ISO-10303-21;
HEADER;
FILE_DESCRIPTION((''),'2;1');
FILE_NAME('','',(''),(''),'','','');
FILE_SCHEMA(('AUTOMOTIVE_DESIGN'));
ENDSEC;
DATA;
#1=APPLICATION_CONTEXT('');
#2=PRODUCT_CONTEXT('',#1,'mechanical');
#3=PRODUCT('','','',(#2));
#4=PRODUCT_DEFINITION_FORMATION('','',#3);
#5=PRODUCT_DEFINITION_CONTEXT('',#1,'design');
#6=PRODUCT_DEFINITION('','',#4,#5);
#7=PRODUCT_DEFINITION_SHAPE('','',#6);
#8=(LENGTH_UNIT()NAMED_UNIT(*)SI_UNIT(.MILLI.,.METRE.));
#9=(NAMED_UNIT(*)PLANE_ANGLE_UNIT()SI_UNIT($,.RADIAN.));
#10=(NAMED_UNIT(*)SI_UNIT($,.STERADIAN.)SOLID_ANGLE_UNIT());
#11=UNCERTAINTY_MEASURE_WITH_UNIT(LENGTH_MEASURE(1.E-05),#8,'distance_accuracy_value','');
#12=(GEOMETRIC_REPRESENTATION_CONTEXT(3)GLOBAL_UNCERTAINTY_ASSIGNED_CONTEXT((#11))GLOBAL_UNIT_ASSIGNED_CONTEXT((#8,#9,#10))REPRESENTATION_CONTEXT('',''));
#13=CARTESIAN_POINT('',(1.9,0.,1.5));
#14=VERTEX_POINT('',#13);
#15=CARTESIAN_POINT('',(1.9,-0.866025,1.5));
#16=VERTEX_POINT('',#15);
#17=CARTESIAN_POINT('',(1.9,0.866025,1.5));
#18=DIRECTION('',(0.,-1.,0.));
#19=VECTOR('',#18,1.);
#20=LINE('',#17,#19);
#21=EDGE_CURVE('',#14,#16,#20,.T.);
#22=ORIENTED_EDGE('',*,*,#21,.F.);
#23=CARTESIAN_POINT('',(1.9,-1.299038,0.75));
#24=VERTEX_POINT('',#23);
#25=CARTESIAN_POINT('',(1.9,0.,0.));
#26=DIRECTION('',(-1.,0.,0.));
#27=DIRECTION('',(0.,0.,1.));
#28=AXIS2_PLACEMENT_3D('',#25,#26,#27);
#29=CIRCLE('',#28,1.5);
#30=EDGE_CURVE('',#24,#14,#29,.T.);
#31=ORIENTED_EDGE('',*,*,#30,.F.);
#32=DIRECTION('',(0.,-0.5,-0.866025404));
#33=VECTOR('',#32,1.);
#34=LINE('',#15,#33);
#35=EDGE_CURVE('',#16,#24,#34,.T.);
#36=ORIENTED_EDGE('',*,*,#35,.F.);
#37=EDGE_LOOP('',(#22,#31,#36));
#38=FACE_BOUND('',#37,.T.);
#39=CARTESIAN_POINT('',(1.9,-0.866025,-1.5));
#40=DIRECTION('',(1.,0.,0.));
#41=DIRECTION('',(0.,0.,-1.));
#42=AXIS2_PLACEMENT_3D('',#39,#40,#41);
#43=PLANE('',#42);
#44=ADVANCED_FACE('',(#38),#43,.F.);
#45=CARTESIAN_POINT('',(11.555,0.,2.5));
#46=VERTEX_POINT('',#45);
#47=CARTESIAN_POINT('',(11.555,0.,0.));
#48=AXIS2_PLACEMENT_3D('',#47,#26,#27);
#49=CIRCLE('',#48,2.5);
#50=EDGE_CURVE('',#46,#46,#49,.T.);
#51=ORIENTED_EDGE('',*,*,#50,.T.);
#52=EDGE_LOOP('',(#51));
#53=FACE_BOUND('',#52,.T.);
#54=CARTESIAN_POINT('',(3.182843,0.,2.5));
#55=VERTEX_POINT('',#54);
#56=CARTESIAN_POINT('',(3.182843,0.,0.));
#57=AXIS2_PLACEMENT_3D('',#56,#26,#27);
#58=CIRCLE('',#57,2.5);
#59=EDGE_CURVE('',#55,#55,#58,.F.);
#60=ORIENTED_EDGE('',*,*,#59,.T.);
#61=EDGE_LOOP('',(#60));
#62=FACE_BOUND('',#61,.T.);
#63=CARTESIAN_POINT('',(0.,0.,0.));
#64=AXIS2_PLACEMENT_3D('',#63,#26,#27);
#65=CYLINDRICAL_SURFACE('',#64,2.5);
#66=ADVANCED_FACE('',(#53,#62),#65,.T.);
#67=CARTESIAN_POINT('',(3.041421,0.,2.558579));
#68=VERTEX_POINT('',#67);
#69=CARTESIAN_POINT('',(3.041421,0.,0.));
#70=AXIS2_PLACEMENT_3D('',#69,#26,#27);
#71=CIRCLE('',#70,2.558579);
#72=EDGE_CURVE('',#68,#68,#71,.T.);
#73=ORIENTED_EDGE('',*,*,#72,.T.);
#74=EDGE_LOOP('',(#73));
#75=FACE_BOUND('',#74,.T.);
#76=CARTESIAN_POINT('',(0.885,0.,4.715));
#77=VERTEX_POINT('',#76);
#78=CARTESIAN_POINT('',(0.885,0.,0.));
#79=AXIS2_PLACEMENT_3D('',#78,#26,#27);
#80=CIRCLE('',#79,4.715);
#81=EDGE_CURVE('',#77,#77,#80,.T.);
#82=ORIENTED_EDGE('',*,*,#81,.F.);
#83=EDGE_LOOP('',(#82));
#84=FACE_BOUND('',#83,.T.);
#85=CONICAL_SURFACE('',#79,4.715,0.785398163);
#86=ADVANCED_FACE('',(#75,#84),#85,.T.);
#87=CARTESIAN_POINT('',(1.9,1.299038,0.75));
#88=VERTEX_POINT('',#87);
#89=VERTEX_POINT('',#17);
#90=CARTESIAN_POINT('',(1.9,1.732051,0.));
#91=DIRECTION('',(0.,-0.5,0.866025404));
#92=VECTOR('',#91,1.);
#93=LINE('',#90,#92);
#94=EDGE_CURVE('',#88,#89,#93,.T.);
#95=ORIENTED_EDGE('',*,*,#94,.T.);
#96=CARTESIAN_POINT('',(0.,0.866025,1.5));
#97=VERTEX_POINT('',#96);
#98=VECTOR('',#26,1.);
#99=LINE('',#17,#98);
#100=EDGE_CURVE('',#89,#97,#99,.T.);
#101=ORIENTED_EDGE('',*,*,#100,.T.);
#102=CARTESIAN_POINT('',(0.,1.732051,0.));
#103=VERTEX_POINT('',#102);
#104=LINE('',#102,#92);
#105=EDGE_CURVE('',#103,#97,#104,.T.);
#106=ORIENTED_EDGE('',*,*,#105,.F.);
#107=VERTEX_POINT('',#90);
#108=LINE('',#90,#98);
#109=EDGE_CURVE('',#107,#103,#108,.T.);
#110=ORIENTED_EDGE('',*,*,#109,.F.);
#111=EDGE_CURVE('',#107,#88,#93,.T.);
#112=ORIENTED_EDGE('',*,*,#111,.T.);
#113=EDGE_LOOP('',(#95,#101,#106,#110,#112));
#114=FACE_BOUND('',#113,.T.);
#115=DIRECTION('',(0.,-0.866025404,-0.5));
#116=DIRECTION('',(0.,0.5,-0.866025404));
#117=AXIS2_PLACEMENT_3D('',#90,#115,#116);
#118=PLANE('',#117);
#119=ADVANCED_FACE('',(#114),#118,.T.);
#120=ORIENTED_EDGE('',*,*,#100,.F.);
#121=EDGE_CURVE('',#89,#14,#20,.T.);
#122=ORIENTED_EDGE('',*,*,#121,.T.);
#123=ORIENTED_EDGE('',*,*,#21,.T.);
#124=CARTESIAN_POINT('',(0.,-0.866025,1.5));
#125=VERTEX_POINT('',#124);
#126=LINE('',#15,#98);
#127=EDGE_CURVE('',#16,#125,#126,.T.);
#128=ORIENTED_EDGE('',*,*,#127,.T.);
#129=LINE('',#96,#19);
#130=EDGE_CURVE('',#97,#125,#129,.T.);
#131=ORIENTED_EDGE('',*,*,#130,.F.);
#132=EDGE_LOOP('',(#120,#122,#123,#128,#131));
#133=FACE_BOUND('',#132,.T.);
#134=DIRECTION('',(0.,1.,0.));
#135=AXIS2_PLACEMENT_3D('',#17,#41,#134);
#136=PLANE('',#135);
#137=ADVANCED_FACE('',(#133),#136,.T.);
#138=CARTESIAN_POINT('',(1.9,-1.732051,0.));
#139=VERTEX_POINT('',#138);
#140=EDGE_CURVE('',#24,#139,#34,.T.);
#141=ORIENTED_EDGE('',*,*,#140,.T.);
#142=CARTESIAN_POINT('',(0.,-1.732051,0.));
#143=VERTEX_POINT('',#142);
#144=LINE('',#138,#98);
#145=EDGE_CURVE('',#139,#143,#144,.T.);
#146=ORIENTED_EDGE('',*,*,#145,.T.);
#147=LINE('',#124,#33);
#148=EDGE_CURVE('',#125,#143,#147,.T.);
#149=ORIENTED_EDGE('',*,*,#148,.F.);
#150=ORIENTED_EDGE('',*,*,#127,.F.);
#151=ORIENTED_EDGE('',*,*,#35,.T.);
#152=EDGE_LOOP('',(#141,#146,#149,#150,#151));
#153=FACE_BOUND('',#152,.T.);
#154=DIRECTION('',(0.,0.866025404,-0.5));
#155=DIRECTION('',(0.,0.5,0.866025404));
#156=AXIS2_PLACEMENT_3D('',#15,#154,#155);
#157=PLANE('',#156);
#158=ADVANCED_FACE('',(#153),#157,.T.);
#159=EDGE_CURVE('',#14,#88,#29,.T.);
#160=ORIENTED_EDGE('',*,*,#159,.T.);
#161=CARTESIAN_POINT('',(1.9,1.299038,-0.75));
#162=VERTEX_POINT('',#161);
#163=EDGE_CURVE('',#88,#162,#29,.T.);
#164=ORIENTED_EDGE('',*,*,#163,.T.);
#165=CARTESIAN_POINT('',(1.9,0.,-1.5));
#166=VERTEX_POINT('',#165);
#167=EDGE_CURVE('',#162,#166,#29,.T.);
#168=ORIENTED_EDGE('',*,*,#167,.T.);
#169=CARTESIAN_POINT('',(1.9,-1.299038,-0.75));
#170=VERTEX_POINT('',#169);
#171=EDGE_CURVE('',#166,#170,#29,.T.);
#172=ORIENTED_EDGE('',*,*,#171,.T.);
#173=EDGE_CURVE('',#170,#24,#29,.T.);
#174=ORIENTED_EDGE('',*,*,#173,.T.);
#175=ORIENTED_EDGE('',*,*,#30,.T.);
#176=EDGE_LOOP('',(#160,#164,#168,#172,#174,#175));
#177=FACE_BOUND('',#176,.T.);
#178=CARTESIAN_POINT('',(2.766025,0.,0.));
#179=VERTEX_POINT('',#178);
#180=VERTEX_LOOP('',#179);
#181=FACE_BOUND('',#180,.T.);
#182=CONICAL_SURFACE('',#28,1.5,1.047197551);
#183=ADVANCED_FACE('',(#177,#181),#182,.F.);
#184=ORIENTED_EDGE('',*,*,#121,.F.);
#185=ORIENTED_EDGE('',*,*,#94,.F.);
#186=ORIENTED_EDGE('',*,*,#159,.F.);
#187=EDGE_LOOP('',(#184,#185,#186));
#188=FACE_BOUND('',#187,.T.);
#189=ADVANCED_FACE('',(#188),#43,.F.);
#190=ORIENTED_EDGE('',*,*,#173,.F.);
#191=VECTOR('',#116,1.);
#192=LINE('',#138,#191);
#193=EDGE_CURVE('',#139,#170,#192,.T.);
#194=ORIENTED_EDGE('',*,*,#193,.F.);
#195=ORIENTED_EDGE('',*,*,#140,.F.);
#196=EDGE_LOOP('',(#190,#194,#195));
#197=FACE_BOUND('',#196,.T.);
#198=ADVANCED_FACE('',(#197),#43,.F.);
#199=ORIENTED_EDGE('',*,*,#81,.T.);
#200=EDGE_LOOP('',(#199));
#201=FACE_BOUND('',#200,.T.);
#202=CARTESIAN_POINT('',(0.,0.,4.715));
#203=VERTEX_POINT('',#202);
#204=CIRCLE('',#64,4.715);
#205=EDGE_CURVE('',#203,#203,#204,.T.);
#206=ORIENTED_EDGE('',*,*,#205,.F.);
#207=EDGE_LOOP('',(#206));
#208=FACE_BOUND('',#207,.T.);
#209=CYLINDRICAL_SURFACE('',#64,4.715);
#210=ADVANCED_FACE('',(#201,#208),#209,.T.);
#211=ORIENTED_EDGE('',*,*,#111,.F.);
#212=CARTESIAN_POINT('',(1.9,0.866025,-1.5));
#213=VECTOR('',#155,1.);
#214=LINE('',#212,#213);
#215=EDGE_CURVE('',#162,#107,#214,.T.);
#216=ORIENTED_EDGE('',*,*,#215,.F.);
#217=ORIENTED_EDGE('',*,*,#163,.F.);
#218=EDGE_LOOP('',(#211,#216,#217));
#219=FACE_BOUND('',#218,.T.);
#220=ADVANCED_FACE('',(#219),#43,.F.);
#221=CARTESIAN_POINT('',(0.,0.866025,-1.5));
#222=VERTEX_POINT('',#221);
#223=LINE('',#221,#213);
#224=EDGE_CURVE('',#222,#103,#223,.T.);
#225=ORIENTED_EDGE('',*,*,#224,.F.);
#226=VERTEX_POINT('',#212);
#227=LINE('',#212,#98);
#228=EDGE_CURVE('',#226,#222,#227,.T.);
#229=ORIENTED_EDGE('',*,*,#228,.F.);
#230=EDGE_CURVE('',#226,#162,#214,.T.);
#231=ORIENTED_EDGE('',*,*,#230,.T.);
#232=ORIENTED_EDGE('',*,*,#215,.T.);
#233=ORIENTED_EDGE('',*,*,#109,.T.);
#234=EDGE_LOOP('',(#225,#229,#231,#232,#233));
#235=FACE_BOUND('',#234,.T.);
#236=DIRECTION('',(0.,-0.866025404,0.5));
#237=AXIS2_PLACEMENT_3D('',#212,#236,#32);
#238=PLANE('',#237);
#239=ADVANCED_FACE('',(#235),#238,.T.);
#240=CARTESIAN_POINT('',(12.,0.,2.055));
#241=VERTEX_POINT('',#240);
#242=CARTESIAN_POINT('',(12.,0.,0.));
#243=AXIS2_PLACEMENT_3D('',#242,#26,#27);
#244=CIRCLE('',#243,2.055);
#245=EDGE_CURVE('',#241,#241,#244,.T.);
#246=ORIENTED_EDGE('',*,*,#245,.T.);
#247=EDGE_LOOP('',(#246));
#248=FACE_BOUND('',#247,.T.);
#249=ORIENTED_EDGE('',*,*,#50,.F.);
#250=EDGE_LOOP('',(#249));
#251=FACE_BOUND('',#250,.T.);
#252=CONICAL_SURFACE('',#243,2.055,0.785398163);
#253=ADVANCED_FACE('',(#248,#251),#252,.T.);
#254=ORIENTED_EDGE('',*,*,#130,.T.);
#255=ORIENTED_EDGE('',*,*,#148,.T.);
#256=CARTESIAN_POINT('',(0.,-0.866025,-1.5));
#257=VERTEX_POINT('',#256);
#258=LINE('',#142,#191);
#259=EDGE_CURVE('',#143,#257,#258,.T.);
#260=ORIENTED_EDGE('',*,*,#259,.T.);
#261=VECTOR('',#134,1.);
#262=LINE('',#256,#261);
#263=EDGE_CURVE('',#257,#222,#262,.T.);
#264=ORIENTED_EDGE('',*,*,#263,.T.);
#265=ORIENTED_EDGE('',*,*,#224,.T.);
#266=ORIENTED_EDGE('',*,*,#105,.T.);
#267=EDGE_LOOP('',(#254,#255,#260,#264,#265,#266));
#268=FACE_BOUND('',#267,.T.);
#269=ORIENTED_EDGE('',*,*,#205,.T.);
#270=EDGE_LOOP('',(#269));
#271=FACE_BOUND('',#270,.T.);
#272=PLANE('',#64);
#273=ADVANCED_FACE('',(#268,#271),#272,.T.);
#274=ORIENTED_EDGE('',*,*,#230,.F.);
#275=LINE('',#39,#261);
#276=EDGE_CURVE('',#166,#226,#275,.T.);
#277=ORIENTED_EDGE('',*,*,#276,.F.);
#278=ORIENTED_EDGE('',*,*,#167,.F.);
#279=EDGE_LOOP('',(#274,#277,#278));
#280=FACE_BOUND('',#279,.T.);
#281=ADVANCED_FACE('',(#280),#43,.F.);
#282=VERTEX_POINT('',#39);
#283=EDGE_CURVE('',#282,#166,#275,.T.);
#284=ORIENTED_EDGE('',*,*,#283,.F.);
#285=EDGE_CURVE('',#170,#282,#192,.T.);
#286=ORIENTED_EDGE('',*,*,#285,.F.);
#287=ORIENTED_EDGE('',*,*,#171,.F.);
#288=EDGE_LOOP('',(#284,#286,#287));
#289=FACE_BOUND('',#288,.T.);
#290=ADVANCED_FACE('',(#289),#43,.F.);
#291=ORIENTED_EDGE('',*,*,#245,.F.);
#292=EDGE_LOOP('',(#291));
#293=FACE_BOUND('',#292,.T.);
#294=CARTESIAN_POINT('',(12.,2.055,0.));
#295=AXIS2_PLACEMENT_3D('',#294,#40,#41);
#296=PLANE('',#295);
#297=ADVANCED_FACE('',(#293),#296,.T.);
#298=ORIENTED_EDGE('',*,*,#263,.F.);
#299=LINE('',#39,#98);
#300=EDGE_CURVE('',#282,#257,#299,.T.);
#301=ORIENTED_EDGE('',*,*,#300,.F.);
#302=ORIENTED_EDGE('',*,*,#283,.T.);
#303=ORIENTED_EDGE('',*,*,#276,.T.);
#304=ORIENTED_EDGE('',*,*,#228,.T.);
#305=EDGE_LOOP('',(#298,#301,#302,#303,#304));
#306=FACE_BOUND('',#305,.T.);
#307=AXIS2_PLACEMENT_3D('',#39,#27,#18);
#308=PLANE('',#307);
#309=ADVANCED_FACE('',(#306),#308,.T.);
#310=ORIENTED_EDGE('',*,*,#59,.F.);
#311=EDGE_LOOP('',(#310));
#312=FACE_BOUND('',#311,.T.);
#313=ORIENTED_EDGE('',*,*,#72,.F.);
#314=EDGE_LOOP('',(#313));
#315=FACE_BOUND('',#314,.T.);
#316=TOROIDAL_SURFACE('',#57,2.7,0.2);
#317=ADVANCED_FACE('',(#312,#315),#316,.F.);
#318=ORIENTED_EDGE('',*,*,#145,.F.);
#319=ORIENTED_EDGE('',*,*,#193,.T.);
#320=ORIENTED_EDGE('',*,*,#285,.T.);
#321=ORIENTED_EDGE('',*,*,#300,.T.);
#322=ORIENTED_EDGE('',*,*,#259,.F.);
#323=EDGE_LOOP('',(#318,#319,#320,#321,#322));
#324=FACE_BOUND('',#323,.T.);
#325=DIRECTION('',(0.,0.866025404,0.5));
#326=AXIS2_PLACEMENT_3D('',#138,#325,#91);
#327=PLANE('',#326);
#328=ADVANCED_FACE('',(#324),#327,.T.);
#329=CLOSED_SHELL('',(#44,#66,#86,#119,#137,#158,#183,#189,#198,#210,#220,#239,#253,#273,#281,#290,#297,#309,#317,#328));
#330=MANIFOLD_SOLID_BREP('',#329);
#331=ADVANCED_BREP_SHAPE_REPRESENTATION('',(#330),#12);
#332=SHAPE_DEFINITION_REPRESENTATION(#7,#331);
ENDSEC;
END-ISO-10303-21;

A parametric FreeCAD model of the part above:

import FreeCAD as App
import Part
import Sketcher
Q = App.Units.Quantity


def edges_at(feature, points):
    """Names of the edges that pass closest to the given points."""
    edges = feature.Shape.Edges
    near = lambda p: min(range(len(edges)), key=lambda i: edges[i].distToShape(Part.Vertex(*p))[0])
    return sorted({f"Edge{near(p) + 1}" for p in points})


def add_polygon(sketch, points):
    """Adds a closed chain of lines whose ends are joined by coincident constraints."""
    first, n = sketch.GeometryCount, len(points)
    for a, b in zip(points, points[1:] + points[:1]):
        sketch.addGeometry(Part.LineSegment(App.Vector(*a, 0), App.Vector(*b, 0)), False)
    for i in range(n):
        sketch.addConstraint(Sketcher.Constraint("Coincident", first + i, 2, first + (i + 1) % n, 1))

doc = App.newDocument("Part")
body = doc.addObject("PartDesign::Body", "Body")

sketch1 = body.newObject("Sketcher::SketchObject", "Sketch")
sketch1.AttachmentSupport = (doc.getObject("XY_Plane"), [""])
sketch1.MapMode = "FlatFace"
add_polygon(sketch1, [(0, 4.715), (0, 0), (12, 0), (12, 2.055), (11.555, 2.5), (3.1, 2.5), (0.885, 4.715)])
sketch1.addConstraint([
    Sketcher.Constraint("Vertical", 0),
    Sketcher.Constraint("Horizontal", 1),
    Sketcher.Constraint("Vertical", 2),
    Sketcher.Constraint("Horizontal", 4),
    Sketcher.Constraint("Horizontal", 6),
    Sketcher.Constraint("Coincident", 0, 2, -1, 1),
    Sketcher.Constraint("Parallel", 3, 5),
    Sketcher.Constraint("DistanceX", 1, 1, 1, 2, Q("12 mm")),
    Sketcher.Constraint("Angle", 3, Q("135 deg")),
    Sketcher.Constraint("DistanceY", -1, 1, 3, 2, Q("2.5 mm")),
    Sketcher.Constraint("DistanceX", -1, 1, 4, 2, Q("3.1 mm")),
    Sketcher.Constraint("DistanceX", 4, 2, 4, 1, Q("8.455 mm")),
    Sketcher.Constraint("DistanceX", 6, 2, 6, 1, Q("0.885 mm")),
])
revolution = body.newObject("PartDesign::Revolution", "Revolution")
revolution.Profile = sketch1
revolution.ReferenceAxis = (sketch1, ["H_Axis"])
revolution.Angle = 360
doc.recompute()

fillet = body.newObject("PartDesign::Fillet", "Fillet")
fillet.Base = (revolution, edges_at(revolution, [(3.1, 0, -2.5)]))
fillet.Radius = 0.2

sketch2 = body.newObject("Sketcher::SketchObject", "Sketch001")
sketch2.AttachmentSupport = (doc.getObject("XY_Plane"), [""])
sketch2.MapMode = "FlatFace"
add_polygon(sketch2, [(1.9, 1.5), (0, 1.5), (0, 0), (2.766025, 0)])
sketch2.addConstraint([
    Sketcher.Constraint("Horizontal", 0),
    Sketcher.Constraint("Vertical", 1),
    Sketcher.Constraint("Horizontal", 2),
    Sketcher.Constraint("Coincident", 1, 2, -1, 1),
    Sketcher.Constraint("Angle", 3, Q("120 deg")),
    Sketcher.Constraint("DistanceX", 0, 2, 0, 1, Q("1.9 mm")),
    Sketcher.Constraint("DistanceY", 1, 2, 1, 1, Q("1.5 mm")),
])
groove = body.newObject("PartDesign::Groove", "Groove")
groove.Profile = sketch2
groove.ReferenceAxis = (sketch2, ["H_Axis"])
groove.Angle = 360

sketch3 = body.newObject("Sketcher::SketchObject", "Sketch002")
sketch3.AttachmentSupport = (doc.getObject("YZ_Plane"), [""])
sketch3.MapMode = "FlatFace"
add_polygon(sketch3, [(0.866025, -1.5), (-0.866025, -1.5), (-1.732051, 0), (-0.866025, 1.5), (0.866025, 1.5), (1.732051, 0)])
sketch3.addConstraint([
    Sketcher.Constraint("Horizontal", 0),
    Sketcher.Constraint("Horizontal", 3),
    Sketcher.Constraint("Symmetric", 0, 2, 3, 2, -1, 1),
    Sketcher.Constraint("Symmetric", 1, 2, 4, 2, -1, 1),
    Sketcher.Constraint("PointOnObject", 1, 2, -1),
    Sketcher.Constraint("Parallel", 2, 5),
    Sketcher.Constraint("Vertical", 0, 2, 2, 2),
    Sketcher.Constraint("Angle", 1, Q("120 deg")),
    Sketcher.Constraint("DistanceY", 0, 2, 2, 2, Q("3 mm")),
    Sketcher.Constraint("DistanceX", 0, 2, 0, 1, Q("1.732051 mm")),
])
pocket1 = body.newObject("PartDesign::Pocket", "Pocket")
pocket1.Profile = sketch3
pocket1.Length = 1.9
pocket1.Reversed = True

doc.recompute()
